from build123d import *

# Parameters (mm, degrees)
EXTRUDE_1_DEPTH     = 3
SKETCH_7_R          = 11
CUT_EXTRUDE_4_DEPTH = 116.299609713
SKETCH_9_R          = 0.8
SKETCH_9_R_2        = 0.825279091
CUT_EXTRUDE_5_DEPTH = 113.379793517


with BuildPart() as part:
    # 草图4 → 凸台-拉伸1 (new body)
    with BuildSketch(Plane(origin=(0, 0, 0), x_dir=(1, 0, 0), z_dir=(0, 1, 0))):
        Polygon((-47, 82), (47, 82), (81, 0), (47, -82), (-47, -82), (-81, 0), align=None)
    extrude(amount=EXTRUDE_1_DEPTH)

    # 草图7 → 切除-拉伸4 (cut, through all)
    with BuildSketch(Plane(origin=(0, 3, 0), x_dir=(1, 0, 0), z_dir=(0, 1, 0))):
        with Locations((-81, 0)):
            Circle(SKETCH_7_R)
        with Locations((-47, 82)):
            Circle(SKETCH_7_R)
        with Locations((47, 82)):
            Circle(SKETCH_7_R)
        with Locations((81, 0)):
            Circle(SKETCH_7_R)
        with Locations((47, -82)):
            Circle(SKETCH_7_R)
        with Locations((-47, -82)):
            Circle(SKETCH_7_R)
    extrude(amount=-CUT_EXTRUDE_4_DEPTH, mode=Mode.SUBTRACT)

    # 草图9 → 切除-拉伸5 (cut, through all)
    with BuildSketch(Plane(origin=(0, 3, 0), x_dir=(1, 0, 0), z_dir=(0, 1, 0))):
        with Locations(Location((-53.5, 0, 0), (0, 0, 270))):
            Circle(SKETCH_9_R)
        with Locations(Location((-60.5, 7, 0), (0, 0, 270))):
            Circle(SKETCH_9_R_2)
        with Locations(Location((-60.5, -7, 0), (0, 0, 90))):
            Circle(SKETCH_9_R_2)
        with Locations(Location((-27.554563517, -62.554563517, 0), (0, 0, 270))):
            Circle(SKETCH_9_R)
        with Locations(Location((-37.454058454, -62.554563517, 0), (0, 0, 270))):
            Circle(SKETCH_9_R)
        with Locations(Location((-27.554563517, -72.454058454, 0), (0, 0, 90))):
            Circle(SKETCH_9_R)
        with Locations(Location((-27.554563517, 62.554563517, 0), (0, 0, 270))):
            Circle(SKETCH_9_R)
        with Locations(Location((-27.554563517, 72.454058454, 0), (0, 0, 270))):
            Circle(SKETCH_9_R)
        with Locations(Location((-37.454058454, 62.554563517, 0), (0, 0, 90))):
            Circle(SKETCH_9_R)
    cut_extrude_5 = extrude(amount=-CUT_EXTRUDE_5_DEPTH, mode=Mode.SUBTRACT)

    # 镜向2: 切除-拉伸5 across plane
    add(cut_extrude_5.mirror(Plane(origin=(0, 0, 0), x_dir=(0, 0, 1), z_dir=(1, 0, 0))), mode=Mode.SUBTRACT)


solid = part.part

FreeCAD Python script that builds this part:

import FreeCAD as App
import Part
import Sketcher

V = App.Vector
Q = App.Units.Quantity

doc = App.newDocument("Part")
params = doc.addObject("Spreadsheet::Sheet", "Params")
for row, (alias, value) in enumerate([
    ("sketch1_width", "94 mm"),
    ("pad1_length", "3 mm"),
    ("sketch2_diameter", "22 mm"),
    ("sketch3_diameter", "1.6 mm"),
], start=1):
    params.set(f"A{row}", alias)
    params.set(f"B{row}", "=" + value)
    params.setAlias(f"B{row}", alias)

body = doc.addObject("PartDesign::Body", "Body")

# Sketch on XZ plane
sketch1 = doc.addObject("Sketcher::SketchObject", "Sketch")
body.addObject(sketch1)
sketch1.AttachmentSupport = (doc.XZ_Plane, [""])
sketch1.MapMode = "FlatFace"
sketch1.addGeometry(Part.LineSegment(V(47, -82, 0), V(-47, -82, 0)), False)
sketch1.addGeometry(Part.LineSegment(V(-47, -82, 0), V(-81, 0, 0)), False)
sketch1.addGeometry(Part.LineSegment(V(-81, 0, 0), V(-47, 82, 0)), False)
sketch1.addGeometry(Part.LineSegment(V(-47, 82, 0), V(47, 82, 0)), False)
sketch1.addGeometry(Part.LineSegment(V(47, 82, 0), V(81, 0, 0)), False)
sketch1.addGeometry(Part.LineSegment(V(81, 0, 0), V(47, -82, 0)), False)
sketch1.addConstraint(Sketcher.Constraint("Coincident", 0, 2, 1, 1))
sketch1.addConstraint(Sketcher.Constraint("Coincident", 1, 2, 2, 1))
sketch1.addConstraint(Sketcher.Constraint("Coincident", 2, 2, 3, 1))
sketch1.addConstraint(Sketcher.Constraint("Coincident", 3, 2, 4, 1))
sketch1.addConstraint(Sketcher.Constraint("Coincident", 4, 2, 5, 1))
sketch1.addConstraint(Sketcher.Constraint("Coincident", 5, 2, 0, 1))
sketch1.addConstraint(Sketcher.Constraint("Horizontal", 0))
sketch1.addConstraint(Sketcher.Constraint("Horizontal", 3))
sketch1.addConstraint(Sketcher.Constraint("Symmetric", 0, 2, 3, 2, -1, 1))
sketch1.addConstraint(Sketcher.Constraint("Symmetric", 1, 2, 4, 2, -1, 1))
sketch1.addConstraint(Sketcher.Constraint("PointOnObject", 1, 2, -1))
sketch1.addConstraint(Sketcher.Constraint("Parallel", 2, 5))
sketch1.addConstraint(Sketcher.Constraint("Vertical", 0, 2, 2, 2))
sketch1.addConstraint(Sketcher.Constraint("DistanceX", 0, 2, 0, 1, Q("94 mm")))
sketch1.addConstraint(Sketcher.Constraint("DistanceY", 0, 2, -1, 1, Q("82 mm")))
sketch1.addConstraint(Sketcher.Constraint("DistanceX", 1, 2, -1, 1, Q("81 mm")))
sketch1.setExpression("Constraints[13]", "Params.sketch1_width")
pad1 = doc.addObject("PartDesign::Pad", "Pad")
body.addObject(pad1)
pad1.Profile = sketch1
pad1.setExpression("Length", "Params.pad1_length")
pad1.Reversed = True

# Sketch on XZ plane
sketch2 = doc.addObject("Sketcher::SketchObject", "Sketch001")
body.addObject(sketch2)
sketch2.AttachmentSupport = (doc.XZ_Plane, [""])
sketch2.MapMode = "FlatFace"
sketch2.AttachmentOffset = App.Placement(V(0, 0, -3), App.Rotation())
sketch2.addGeometry(Part.Circle(V(-81, 0, 0), V(0, 0, 1), 11), False)
sketch2.addGeometry(Part.Circle(V(-47, -82, 0), V(0, 0, 1), 11), False)
sketch2.addGeometry(Part.Circle(V(47, -82, 0), V(0, 0, 1), 11), False)
sketch2.addGeometry(Part.Circle(V(81, 0, 0), V(0, 0, 1), 11), False)
sketch2.addGeometry(Part.Circle(V(47, 82, 0), V(0, 0, 1), 11), False)
sketch2.addGeometry(Part.Circle(V(-47, 82, 0), V(0, 0, 1), 11), False)
sketch2.addConstraint(Sketcher.Constraint("Equal", 0, 1))
sketch2.addConstraint(Sketcher.Constraint("Equal", 1, 2))
sketch2.addConstraint(Sketcher.Constraint("Equal", 2, 3))
sketch2.addConstraint(Sketcher.Constraint("Equal", 3, 4))
sketch2.addConstraint(Sketcher.Constraint("Equal", 4, 5))
sketch2.addConstraint(Sketcher.Constraint("Symmetric", 0, 3, 3, 3, -1, 1))
sketch2.addConstraint(Sketcher.Constraint("Symmetric", 1, 3, 4, 3, -1, 1))
sketch2.addConstraint(Sketcher.Constraint("Symmetric", 2, 3, 5, 3, -1, 1))
sketch2.addConstraint(Sketcher.Constraint("Symmetric", 1, 3, 2, 3, -2))
sketch2.addConstraint(Sketcher.Constraint("PointOnObject", 0, 3, -1))
sketch2.addConstraint(Sketcher.Constraint("Diameter", 0, Q("22 mm")))
sketch2.addConstraint(Sketcher.Constraint("DistanceX", 0, 3, -1, 1, Q("81 mm")))
sketch2.addConstraint(Sketcher.Constraint("DistanceX", 1, 3, -1, 1, Q("47 mm")))
sketch2.addConstraint(Sketcher.Constraint("DistanceY", 1, 3, -1, 1, Q("82 mm")))
sketch2.setExpression("Constraints[10]", "Params.sketch2_diameter")
pocket1 = doc.addObject("PartDesign::Pocket", "Pocket")
body.addObject(pocket1)
pocket1.Profile = sketch2
pocket1.Type = "ThroughAll"
pocket1.Reversed = True

# Sketch on XZ plane
sketch3 = doc.addObject("Sketcher::SketchObject", "Sketch002")
body.addObject(sketch3)
sketch3.AttachmentSupport = (doc.XZ_Plane, [""])
sketch3.MapMode = "FlatFace"
sketch3.AttachmentOffset = App.Placement(V(0, 0, -3), App.Rotation())
sketch3.addGeometry(Part.Circle(V(-53.5, 0, 0), V(0, 0, 1), 0.8), False)
sketch3.addGeometry(Part.Circle(V(-60.5, -7, 0), V(0, 0, 1), 0.8), False)
sketch3.addGeometry(Part.Circle(V(-60.5, 7, 0), V(0, 0, 1), 0.8), False)
sketch3.addGeometry(Part.Circle(V(-27.6, 62.6, 0), V(0, 0, 1), 0.8), False)
sketch3.addGeometry(Part.Circle(V(-37.5, 62.6, 0), V(0, 0, 1), 0.8), False)
sketch3.addGeometry(Part.Circle(V(-27.6, 72.5, 0), V(0, 0, 1), 0.8), False)
sketch3.addGeometry(Part.Circle(V(-27.6, -62.6, 0), V(0, 0, 1), 0.8), False)
sketch3.addGeometry(Part.Circle(V(-27.6, -72.5, 0), V(0, 0, 1), 0.8), False)
sketch3.addGeometry(Part.Circle(V(-37.5, -62.6, 0), V(0, 0, 1), 0.8), False)
sketch3.addConstraint(Sketcher.Constraint("Equal", 1, 2))
sketch3.addConstraint(Sketcher.Constraint("Equal", 0, 3))
sketch3.addConstraint(Sketcher.Constraint("Equal", 3, 4))
sketch3.addConstraint(Sketcher.Constraint("Equal", 4, 5))
sketch3.addConstraint(Sketcher.Constraint("Equal", 5, 6))
sketch3.addConstraint(Sketcher.Constraint("Equal", 6, 7))
sketch3.addConstraint(Sketcher.Constraint("Equal", 7, 8))
sketch3.addConstraint(Sketcher.Constraint("Symmetric", 1, 3, 2, 3, -1))
sketch3.addConstraint(Sketcher.Constraint("Symmetric", 3, 3, 6, 3, -1))
sketch3.addConstraint(Sketcher.Constraint("Symmetric", 5, 3, 7, 3, -1))
sketch3.addConstraint(Sketcher.Constraint("Symmetric", 4, 3, 8, 3, -1))
sketch3.addConstraint(Sketcher.Constraint("PointOnObject", 0, 3, -1))
sketch3.addConstraint(Sketcher.Constraint("Horizontal", 3, 3, 4, 3))
sketch3.addConstraint(Sketcher.Constraint("Vertical", 3, 3, 5, 3))
sketch3.addConstraint(Sketcher.Constraint("Diameter", 0, Q("1.6 mm")))
sketch3.addConstraint(Sketcher.Constraint("DistanceY", 1, 3, -1, 1, Q("7 mm")))
sketch3.addConstraint(Sketcher.Constraint("DistanceX", 1, 3, 0, 3, Q("7 mm")))
sketch3.addConstraint(Sketcher.Constraint("DistanceX", 0, 3, -1, 1, Q("53.5 mm")))
sketch3.addConstraint(Sketcher.Constraint("Diameter", 1, Q("1.650558 mm")))
sketch3.addConstraint(Sketcher.Constraint("DistanceX", 4, 3, -1, 1, Q("37.454058 mm")))
sketch3.addConstraint(Sketcher.Constraint("DistanceY", -1, 1, 5, 3, Q("72.454058 mm")))
sketch3.addConstraint(Sketcher.Constraint("DistanceY", 7, 3, 3, 3, Q("135.008622 mm")))
sketch3.addConstraint(Sketcher.Constraint("DistanceX", 3, 3, -1, 1, Q("27.554564 mm")))
sketch3.setExpression("Constraints[14]", "Params.sketch3_diameter")
pocket2 = doc.addObject("PartDesign::Pocket", "Pocket001")
body.addObject(pocket2)
pocket2.Profile = sketch3
pocket2.Type = "ThroughAll"
pocket2.Reversed = True
doc.recompute()

mirrored = doc.addObject("PartDesign::Mirrored", "Mirrored")
body.addObject(mirrored)
mirrored.Originals = [pocket2]
mirrored.MirrorPlane = (doc.YZ_Plane, [""])
body.Tip = mirrored

doc.recompute()
